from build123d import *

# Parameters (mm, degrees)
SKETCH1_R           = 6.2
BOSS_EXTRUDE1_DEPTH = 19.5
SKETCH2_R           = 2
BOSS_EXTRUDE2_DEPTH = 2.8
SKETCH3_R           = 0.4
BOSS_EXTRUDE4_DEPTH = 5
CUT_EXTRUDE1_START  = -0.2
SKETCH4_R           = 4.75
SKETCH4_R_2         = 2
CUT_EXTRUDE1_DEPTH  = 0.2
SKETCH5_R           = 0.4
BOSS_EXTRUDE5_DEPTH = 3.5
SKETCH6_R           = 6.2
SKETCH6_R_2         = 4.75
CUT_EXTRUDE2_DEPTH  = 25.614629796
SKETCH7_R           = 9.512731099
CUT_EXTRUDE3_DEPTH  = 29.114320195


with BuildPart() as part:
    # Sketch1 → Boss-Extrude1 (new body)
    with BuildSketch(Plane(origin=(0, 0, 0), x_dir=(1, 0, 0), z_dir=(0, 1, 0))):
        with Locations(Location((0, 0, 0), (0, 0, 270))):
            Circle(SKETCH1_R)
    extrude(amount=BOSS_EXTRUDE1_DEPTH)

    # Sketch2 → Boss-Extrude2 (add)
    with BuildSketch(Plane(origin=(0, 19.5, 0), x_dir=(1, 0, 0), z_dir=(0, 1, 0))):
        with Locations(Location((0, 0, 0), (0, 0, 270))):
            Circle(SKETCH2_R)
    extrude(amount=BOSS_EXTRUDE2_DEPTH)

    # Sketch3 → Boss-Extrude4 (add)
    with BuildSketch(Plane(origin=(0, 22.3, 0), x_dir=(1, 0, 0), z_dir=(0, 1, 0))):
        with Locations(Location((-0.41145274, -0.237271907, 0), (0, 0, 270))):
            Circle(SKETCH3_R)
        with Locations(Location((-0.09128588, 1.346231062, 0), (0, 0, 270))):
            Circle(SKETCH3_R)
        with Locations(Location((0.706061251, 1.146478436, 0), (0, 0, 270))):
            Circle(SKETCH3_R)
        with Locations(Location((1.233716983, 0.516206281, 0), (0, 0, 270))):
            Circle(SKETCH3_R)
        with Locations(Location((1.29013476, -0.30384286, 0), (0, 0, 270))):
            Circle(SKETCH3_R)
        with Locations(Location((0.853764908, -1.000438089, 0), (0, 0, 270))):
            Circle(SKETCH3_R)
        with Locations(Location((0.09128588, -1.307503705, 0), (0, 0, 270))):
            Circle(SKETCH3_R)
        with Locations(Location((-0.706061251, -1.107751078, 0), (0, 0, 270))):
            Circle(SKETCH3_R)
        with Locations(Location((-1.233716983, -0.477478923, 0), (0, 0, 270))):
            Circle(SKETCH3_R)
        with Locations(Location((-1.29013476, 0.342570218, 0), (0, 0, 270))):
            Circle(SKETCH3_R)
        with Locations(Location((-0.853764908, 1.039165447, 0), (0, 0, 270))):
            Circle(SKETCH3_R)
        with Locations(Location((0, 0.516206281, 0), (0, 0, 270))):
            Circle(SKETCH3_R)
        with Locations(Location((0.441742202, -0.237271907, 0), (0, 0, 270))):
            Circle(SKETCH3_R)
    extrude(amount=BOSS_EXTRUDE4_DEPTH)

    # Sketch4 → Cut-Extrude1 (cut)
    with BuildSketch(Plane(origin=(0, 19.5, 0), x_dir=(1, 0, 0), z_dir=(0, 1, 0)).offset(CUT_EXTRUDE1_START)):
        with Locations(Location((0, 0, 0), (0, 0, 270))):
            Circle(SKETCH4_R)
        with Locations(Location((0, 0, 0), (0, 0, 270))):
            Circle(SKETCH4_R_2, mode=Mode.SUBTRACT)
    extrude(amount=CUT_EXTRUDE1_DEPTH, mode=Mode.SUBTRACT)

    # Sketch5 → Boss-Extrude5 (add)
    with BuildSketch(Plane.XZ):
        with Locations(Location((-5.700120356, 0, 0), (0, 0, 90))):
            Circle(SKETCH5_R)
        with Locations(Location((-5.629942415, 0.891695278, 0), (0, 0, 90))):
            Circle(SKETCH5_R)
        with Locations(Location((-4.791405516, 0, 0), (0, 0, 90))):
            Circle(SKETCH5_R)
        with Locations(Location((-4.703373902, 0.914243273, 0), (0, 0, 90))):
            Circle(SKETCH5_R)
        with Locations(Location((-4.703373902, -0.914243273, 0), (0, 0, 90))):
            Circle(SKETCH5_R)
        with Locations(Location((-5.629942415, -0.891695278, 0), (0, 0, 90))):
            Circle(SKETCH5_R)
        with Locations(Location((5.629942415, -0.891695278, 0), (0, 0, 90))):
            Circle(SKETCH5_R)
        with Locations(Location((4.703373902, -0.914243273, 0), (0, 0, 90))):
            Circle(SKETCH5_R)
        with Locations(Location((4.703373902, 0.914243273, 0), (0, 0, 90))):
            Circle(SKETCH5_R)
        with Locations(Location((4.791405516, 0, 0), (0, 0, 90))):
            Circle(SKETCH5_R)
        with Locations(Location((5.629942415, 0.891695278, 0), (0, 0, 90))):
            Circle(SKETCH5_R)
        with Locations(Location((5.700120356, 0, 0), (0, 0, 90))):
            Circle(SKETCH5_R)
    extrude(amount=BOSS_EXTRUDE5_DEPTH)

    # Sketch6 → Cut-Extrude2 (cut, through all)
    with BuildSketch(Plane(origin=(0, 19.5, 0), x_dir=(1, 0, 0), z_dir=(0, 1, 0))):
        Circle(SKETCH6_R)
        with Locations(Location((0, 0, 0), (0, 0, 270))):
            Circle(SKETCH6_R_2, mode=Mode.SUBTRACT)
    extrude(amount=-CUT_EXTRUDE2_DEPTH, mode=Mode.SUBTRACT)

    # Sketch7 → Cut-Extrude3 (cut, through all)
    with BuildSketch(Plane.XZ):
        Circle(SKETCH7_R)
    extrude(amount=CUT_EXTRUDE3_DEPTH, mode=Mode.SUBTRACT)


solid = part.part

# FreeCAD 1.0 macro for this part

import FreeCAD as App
import Part
import Sketcher

V = App.Vector
Q = App.Units.Quantity

doc = App.newDocument("Part")
body = doc.addObject("PartDesign::Body", "Body")

# Sketch on XZ plane
sketch1 = doc.addObject("Sketcher::SketchObject", "Sketch")
body.addObject(sketch1)
sketch1.AttachmentSupport = (doc.XZ_Plane, [""])
sketch1.MapMode = "FlatFace"
sketch1.addGeometry(Part.Circle(V(0, 0, 0), V(0, 0, 1), 6), False)
sketch1.addConstraint([
    Sketcher.Constraint("Coincident", 0, 3, -1, 1),
    Sketcher.Constraint("Diameter", 0, Q("12.4 mm")),
])
pad1 = doc.addObject("PartDesign::Pad", "Pad")
body.addObject(pad1)
pad1.Profile = sketch1
pad1.Length = 19.5
pad1.Reversed = True

# Sketch on XZ plane
sketch2 = doc.addObject("Sketcher::SketchObject", "Sketch001")
body.addObject(sketch2)
sketch2.AttachmentSupport = (doc.XZ_Plane, [""])
sketch2.MapMode = "FlatFace"
sketch2.AttachmentOffset = App.Placement(V(0, 0, -19.5), App.Rotation())
sketch2.addGeometry(Part.Circle(V(0, 0, 0), V(0, 0, 1), 2), False)
sketch2.addConstraint([
    Sketcher.Constraint("Coincident", 0, 3, -1, 1),
    Sketcher.Constraint("Diameter", 0, Q("4 mm")),
])
pad2 = doc.addObject("PartDesign::Pad", "Pad001")
body.addObject(pad2)
pad2.Profile = sketch2
pad2.Length = 2.8
pad2.Reversed = True

# Sketch on XZ plane
sketch3 = doc.addObject("Sketcher::SketchObject", "Sketch002")
body.addObject(sketch3)
sketch3.AttachmentSupport = (doc.XZ_Plane, [""])
sketch3.MapMode = "FlatFace"
sketch3.AttachmentOffset = App.Placement(V(0, 0, -22.3), App.Rotation())
sketch3.addGeometry([
    Part.Circle(V(-0.41, 0.24, 0), V(0, 0, 1), 0.4),  # 0
    Part.Circle(V(-0.09, -1.35, 0), V(0, 0, 1), 0.4),  # 1
    Part.Circle(V(0.71, -1.15, 0), V(0, 0, 1), 0.4),  # 2
    Part.Circle(V(1.23, -0.52, 0), V(0, 0, 1), 0.4),  # 3
    Part.Circle(V(1.29, 0.3, 0), V(0, 0, 1), 0.4),  # 4
    Part.Circle(V(0.85, 1, 0), V(0, 0, 1), 0.4),  # 5
    Part.Circle(V(0.09, 1.31, 0), V(0, 0, 1), 0.4),  # 6
    Part.Circle(V(-0.71, 1.11, 0), V(0, 0, 1), 0.4),  # 7
    Part.Circle(V(-1.23, 0.48, 0), V(0, 0, 1), 0.4),  # 8
    Part.Circle(V(-1.29, -0.34, 0), V(0, 0, 1), 0.4),  # 9
    Part.Circle(V(-0.85, -1.04, 0), V(0, 0, 1), 0.4),  # 10
    Part.Circle(V(0, -0.52, 0), V(0, 0, 1), 0.4),  # 11
    Part.Circle(V(0.44, 0.24, 0), V(0, 0, 1), 0.4),  # 12
], False)
sketch3.addConstraint([
    Sketcher.Constraint("Equal", 0, 1),
    Sketcher.Constraint("Equal", 1, 2),
    Sketcher.Constraint("Equal", 2, 3),
    Sketcher.Constraint("Equal", 3, 4),
    Sketcher.Constraint("Equal", 4, 5),
    Sketcher.Constraint("Equal", 5, 6),
    Sketcher.Constraint("Equal", 6, 7),
    Sketcher.Constraint("Equal", 7, 8),
    Sketcher.Constraint("Equal", 8, 9),
    Sketcher.Constraint("Equal", 9, 10),
    Sketcher.Constraint("Equal", 10, 11),
    Sketcher.Constraint("Equal", 11, 12),
    Sketcher.Constraint("PointOnObject", 11, 3, -2),
    Sketcher.Constraint("Horizontal", 3, 3, 11, 3),
    Sketcher.Constraint("Horizontal", 0, 3, 12, 3),
    Sketcher.Constraint("Diameter", 0, Q("0.8 mm")),
    Sketcher.Constraint("DistanceY", -1, 1, 0, 3, Q("0.237272 mm")),
    Sketcher.Constraint("DistanceY", 1, 3, -1, 1, Q("1.346231 mm")),
    Sketcher.Constraint("DistanceX", -1, 1, 2, 3, Q("0.706061 mm")),
    Sketcher.Constraint("DistanceY", 2, 3, -1, 1, Q("1.146478 mm")),
    Sketcher.Constraint("DistanceY", -1, 1, 5, 3, Q("1.000438 mm")),
    Sketcher.Constraint("DistanceX", 7, 3, -1, 1, Q("0.706061 mm")),
    Sketcher.Constraint("DistanceY", -1, 1, 7, 3, Q("1.107751 mm")),
    Sketcher.Constraint("DistanceY", -1, 1, 8, 3, Q("0.477479 mm")),
    Sketcher.Constraint("DistanceY", 9, 3, -1, 1, Q("0.34257 mm")),
    Sketcher.Constraint("DistanceX", 0, 3, 3, 3, Q("1.64517 mm")),
    Sketcher.Constraint("DistanceY", 3, 3, 0, 3, Q("0.753478 mm")),
    Sketcher.Constraint("DistanceY", 3, 3, 4, 3, Q("0.820049 mm")),
    Sketcher.Constraint("DistanceX", 1, 3, 4, 3, Q("1.381421 mm")),
    Sketcher.Constraint("DistanceX", 5, 3, 4, 3, Q("0.43637 mm")),
    Sketcher.Constraint("DistanceX", 6, 3, 5, 3, Q("0.762479 mm")),
    Sketcher.Constraint("DistanceX", 0, 3, 6, 3, Q("0.502739 mm")),
    Sketcher.Constraint("DistanceY", 0, 3, 6, 3, Q("1.070232 mm")),
    Sketcher.Constraint("DistanceX", 7, 3, 0, 3, Q("0.294609 mm")),
    Sketcher.Constraint("DistanceX", 8, 3, 1, 3, Q("1.142431 mm")),
    Sketcher.Constraint("DistanceX", 9, 3, 1, 3, Q("1.198849 mm")),
    Sketcher.Constraint("DistanceX", 10, 3, 1, 3, Q("0.762479 mm")),
    Sketcher.Constraint("DistanceY", 10, 3, 11, 3, Q("0.522959 mm")),
    Sketcher.Constraint("DistanceX", -1, 1, 12, 3, Q("0.441742 mm")),
])
pad3 = doc.addObject("PartDesign::Pad", "Pad002")
body.addObject(pad3)
pad3.Profile = sketch3
pad3.Length = 5
pad3.Reversed = True

# Sketch on XZ plane
sketch4 = doc.addObject("Sketcher::SketchObject", "Sketch003")
body.addObject(sketch4)
sketch4.AttachmentSupport = (doc.XZ_Plane, [""])
sketch4.MapMode = "FlatFace"
sketch4.AttachmentOffset = App.Placement(V(0, 0, -19.3), App.Rotation())
sketch4.addGeometry([
    Part.Circle(V(0, 0, 0), V(0, 0, 1), 4.8),
    Part.Circle(V(0, 0, 0), V(0, 0, 1), 2),
], False)
sketch4.addConstraint([
    Sketcher.Constraint("Coincident", 0, 3, -1, 1),
    Sketcher.Constraint("Coincident", 1, 3, -1, 1),
    Sketcher.Constraint("Diameter", 1, Q("4 mm")),
    Sketcher.Constraint("Diameter", 0, Q("9.5 mm")),
])
pocket1 = doc.addObject("PartDesign::Pocket", "Pocket")
body.addObject(pocket1)
pocket1.Profile = sketch4
pocket1.Length = 0.2

# Sketch on XZ plane
sketch5 = doc.addObject("Sketcher::SketchObject", "Sketch004")
body.addObject(sketch5)
sketch5.AttachmentSupport = (doc.XZ_Plane, [""])
sketch5.MapMode = "FlatFace"
sketch5.addGeometry([
    Part.Circle(V(-5.7, 0, 0), V(0, 0, 1), 0.4),  # 0
    Part.Circle(V(-5.63, 0.89, 0), V(0, 0, 1), 0.4),  # 1
    Part.Circle(V(-4.79, 0, 0), V(0, 0, 1), 0.4),  # 2
    Part.Circle(V(-4.7, 0.91, 0), V(0, 0, 1), 0.4),  # 3
    Part.Circle(V(-4.7, -0.91, 0), V(0, 0, 1), 0.4),  # 4
    Part.Circle(V(-5.63, -0.89, 0), V(0, 0, 1), 0.4),  # 5
    Part.Circle(V(5.63, -0.89, 0), V(0, 0, 1), 0.4),  # 6
    Part.Circle(V(4.7, -0.91, 0), V(0, 0, 1), 0.4),  # 7
    Part.Circle(V(4.7, 0.91, 0), V(0, 0, 1), 0.4),  # 8
    Part.Circle(V(4.79, 0, 0), V(0, 0, 1), 0.4),  # 9
    Part.Circle(V(5.63, 0.89, 0), V(0, 0, 1), 0.4),  # 10
    Part.Circle(V(5.7, 0, 0), V(0, 0, 1), 0.4),  # 11
], False)
sketch5.addConstraint([
    Sketcher.Constraint("Equal", 0, 1),
    Sketcher.Constraint("Equal", 1, 2),
    Sketcher.Constraint("Equal", 2, 3),
    Sketcher.Constraint("Equal", 3, 4),
    Sketcher.Constraint("Equal", 4, 5),
    Sketcher.Constraint("Equal", 5, 6),
    Sketcher.Constraint("Equal", 6, 7),
    Sketcher.Constraint("Equal", 7, 8),
    Sketcher.Constraint("Equal", 8, 9),
    Sketcher.Constraint("Equal", 9, 10),
    Sketcher.Constraint("Equal", 10, 11),
    Sketcher.Constraint("Symmetric", 1, 3, 6, 3, -1, 1),
    Sketcher.Constraint("Symmetric", 3, 3, 7, 3, -1, 1),
    Sketcher.Constraint("Symmetric", 4, 3, 8, 3, -1, 1),
    Sketcher.Constraint("Symmetric", 2, 3, 9, 3, -1, 1),
    Sketcher.Constraint("Symmetric", 5, 3, 10, 3, -1, 1),
    Sketcher.Constraint("Symmetric", 0, 3, 11, 3, -1, 1),
    Sketcher.Constraint("Symmetric", 5, 3, 6, 3, -2),
    Sketcher.Constraint("Symmetric", 4, 3, 7, 3, -2),
    Sketcher.Constraint("PointOnObject", 0, 3, -1),
    Sketcher.Constraint("PointOnObject", 2, 3, -1),
    Sketcher.Constraint("Diameter", 0, Q("0.8 mm")),
    Sketcher.Constraint("DistanceX", 0, 3, -1, 1, Q("5.70012 mm")),
    Sketcher.Constraint("DistanceX", 2, 3, 3, 3, Q("0.088032 mm")),
    Sketcher.Constraint("DistanceX", 1, 3, 3, 3, Q("0.926569 mm")),
    Sketcher.Constraint("DistanceY", 4, 3, 1, 3, Q("1.805939 mm")),
    Sketcher.Constraint("DistanceY", 5, 3, 1, 3, Q("1.783391 mm")),
    Sketcher.Constraint("DistanceX", 2, 3, 7, 3, Q("9.494779 mm")),
])
pad4 = doc.addObject("PartDesign::Pad", "Pad003")
body.addObject(pad4)
pad4.Profile = sketch5
pad4.Length = 3.5

# Sketch on XZ plane
sketch6 = doc.addObject("Sketcher::SketchObject", "Sketch005")
body.addObject(sketch6)
sketch6.AttachmentSupport = (doc.XZ_Plane, [""])
sketch6.MapMode = "FlatFace"
sketch6.AttachmentOffset = App.Placement(V(0, 0, -19.5), App.Rotation())
sketch6.addGeometry([
    Part.Circle(V(0, 0, 0), V(0, 0, 1), 6.2),
    Part.Circle(V(0, 0, 0), V(0, 0, 1), 4.8),
], False)
sketch6.addConstraint([
    Sketcher.Constraint("Coincident", 0, 3, -1, 1),
    Sketcher.Constraint("Coincident", 1, 3, -1, 1),
    Sketcher.Constraint("Diameter", 0, Q("12.4 mm")),
    Sketcher.Constraint("Diameter", 1, Q("9.5 mm")),
])
pocket2 = doc.addObject("PartDesign::Pocket", "Pocket001")
body.addObject(pocket2)
pocket2.Profile = sketch6
pocket2.Type = "ThroughAll"
pocket2.Reversed = True

# Sketch on XZ plane
sketch7 = doc.addObject("Sketcher::SketchObject", "Sketch006")
body.addObject(sketch7)
sketch7.AttachmentSupport = (doc.XZ_Plane, [""])
sketch7.MapMode = "FlatFace"
sketch7.addGeometry(Part.Circle(V(0, 0, 0), V(0, 0, 1), 10), False)
sketch7.addConstraint([
    Sketcher.Constraint("Coincident", 0, 3, -1, 1),
    Sketcher.Constraint("Diameter", 0, Q("19.025462 mm")),
])
pocket3 = doc.addObject("PartDesign::Pocket", "Pocket002")
body.addObject(pocket3)
pocket3.Profile = sketch7
pocket3.Type = "ThroughAll"
pocket3.Reversed = True

doc.recompute()
